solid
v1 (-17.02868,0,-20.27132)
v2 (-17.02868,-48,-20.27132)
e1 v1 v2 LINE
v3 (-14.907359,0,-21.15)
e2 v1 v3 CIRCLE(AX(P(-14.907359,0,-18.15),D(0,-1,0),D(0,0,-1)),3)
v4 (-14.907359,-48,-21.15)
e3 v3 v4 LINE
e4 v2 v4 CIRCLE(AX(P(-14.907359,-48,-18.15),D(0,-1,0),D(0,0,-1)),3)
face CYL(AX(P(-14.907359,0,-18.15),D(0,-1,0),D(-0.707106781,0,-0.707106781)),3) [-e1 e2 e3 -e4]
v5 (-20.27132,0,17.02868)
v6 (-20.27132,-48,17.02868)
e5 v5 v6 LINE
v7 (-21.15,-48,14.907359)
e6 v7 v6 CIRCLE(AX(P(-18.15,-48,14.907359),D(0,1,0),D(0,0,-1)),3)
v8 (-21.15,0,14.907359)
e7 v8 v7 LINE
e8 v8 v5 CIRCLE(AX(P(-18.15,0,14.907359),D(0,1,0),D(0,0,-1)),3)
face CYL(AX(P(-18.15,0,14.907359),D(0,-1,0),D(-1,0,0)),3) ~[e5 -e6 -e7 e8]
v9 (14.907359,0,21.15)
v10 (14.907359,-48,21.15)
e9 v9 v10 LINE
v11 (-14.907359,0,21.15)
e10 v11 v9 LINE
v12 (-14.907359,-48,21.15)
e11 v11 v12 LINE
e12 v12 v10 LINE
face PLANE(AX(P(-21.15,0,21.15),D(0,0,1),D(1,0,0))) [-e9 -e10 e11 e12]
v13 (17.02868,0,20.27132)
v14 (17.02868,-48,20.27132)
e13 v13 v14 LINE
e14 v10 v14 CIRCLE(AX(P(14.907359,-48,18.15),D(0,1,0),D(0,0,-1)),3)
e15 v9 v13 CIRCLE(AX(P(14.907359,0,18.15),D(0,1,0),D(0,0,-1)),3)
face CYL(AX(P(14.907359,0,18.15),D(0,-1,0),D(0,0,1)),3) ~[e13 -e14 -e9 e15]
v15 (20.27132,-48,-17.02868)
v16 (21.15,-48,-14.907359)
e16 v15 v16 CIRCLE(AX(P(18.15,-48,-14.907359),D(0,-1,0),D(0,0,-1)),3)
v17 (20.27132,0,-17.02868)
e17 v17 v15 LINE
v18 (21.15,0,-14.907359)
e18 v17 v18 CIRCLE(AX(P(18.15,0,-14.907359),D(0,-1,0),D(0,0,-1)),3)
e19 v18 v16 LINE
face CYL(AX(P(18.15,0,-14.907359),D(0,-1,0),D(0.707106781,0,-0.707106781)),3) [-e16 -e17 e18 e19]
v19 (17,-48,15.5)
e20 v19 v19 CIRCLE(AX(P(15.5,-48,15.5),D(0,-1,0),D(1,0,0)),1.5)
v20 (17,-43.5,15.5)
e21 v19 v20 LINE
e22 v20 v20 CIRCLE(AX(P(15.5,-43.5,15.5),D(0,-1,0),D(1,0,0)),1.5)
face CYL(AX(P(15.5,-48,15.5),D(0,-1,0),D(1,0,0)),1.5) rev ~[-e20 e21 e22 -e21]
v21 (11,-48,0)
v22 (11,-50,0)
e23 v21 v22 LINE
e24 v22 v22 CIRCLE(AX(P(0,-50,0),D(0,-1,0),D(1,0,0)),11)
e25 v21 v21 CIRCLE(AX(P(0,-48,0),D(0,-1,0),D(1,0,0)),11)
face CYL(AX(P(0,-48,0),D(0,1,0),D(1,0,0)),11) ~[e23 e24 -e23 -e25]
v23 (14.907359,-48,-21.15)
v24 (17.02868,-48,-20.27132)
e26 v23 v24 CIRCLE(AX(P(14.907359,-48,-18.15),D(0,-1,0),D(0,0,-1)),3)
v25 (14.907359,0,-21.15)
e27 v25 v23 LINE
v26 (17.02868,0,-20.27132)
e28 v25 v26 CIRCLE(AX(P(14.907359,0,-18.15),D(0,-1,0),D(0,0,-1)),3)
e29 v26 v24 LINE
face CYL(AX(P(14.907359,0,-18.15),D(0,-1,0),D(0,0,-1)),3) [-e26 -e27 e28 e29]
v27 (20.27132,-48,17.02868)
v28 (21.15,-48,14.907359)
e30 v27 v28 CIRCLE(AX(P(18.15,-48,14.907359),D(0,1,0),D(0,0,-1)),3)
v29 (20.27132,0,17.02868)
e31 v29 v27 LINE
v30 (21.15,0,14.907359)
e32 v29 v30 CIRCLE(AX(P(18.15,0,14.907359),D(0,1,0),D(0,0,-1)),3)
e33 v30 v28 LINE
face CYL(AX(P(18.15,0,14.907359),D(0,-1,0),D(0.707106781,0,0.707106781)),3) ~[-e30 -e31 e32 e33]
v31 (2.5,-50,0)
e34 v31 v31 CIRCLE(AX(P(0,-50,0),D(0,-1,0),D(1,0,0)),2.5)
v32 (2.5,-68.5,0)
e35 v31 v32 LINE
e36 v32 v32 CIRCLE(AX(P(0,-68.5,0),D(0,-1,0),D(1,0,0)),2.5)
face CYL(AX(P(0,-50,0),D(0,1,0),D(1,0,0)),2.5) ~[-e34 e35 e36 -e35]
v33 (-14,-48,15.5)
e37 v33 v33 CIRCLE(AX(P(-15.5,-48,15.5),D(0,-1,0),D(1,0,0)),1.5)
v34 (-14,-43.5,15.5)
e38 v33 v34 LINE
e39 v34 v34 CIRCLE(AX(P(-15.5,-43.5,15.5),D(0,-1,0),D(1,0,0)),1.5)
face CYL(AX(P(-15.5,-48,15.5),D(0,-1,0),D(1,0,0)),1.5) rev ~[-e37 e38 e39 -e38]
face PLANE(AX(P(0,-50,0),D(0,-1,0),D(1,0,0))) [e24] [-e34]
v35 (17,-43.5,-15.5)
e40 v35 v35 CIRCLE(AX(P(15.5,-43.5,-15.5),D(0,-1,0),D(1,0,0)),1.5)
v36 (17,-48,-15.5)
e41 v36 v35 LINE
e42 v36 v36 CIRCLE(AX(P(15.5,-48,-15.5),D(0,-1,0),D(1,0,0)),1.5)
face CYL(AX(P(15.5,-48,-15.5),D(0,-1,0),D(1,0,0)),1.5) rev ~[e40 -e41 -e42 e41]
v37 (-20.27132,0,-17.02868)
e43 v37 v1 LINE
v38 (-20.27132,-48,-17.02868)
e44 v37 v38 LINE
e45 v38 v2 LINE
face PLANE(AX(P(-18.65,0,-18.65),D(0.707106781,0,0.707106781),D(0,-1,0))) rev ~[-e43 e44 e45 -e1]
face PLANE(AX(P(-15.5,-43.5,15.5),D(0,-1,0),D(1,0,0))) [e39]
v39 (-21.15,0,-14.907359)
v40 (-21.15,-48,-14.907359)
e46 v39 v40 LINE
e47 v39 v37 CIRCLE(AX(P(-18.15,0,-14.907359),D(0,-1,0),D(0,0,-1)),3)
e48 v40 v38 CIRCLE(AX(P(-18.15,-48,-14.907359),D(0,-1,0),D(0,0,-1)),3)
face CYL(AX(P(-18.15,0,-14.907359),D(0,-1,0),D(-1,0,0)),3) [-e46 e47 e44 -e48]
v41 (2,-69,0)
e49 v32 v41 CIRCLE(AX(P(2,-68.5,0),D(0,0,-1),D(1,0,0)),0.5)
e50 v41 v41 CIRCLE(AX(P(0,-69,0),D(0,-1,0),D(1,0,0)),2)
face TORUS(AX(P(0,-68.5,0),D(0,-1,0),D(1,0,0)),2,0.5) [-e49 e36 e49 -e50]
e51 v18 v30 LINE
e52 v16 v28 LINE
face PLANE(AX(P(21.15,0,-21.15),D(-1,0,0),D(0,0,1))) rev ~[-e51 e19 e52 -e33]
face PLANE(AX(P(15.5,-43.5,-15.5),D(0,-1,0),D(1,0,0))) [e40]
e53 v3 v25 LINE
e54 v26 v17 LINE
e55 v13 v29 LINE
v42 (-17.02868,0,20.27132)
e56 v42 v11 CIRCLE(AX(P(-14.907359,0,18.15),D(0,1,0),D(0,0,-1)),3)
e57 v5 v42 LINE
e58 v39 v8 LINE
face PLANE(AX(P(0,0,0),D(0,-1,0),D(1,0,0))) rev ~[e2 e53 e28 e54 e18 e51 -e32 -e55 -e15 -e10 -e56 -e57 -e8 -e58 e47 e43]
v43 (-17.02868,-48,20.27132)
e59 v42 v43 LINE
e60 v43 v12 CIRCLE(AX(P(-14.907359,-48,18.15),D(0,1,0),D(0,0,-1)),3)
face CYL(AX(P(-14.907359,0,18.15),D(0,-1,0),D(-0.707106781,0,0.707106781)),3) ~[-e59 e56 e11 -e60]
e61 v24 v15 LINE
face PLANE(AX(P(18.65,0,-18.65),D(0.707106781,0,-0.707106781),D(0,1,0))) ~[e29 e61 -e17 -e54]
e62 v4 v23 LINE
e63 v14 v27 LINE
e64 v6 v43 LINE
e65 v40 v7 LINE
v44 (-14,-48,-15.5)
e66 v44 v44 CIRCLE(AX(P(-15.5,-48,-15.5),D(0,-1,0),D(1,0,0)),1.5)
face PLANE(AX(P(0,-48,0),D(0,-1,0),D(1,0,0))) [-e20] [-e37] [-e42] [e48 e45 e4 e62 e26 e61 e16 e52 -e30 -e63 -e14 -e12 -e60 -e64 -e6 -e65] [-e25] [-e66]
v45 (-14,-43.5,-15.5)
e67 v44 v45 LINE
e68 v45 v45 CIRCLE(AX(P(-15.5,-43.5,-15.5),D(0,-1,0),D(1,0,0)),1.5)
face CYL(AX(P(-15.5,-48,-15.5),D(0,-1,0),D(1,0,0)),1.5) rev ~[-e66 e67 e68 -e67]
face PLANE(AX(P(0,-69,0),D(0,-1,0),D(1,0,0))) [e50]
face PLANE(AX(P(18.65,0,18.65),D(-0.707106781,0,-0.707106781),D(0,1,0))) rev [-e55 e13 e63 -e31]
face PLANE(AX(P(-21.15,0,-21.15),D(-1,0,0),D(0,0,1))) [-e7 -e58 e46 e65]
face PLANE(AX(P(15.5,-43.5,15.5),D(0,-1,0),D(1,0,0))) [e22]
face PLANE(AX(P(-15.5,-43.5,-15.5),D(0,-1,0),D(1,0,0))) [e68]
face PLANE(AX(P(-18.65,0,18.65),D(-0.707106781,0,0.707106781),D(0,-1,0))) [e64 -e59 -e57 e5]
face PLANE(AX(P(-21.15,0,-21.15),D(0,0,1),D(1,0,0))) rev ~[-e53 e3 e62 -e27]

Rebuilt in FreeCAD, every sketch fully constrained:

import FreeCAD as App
import Part
import Sketcher
Q = App.Units.Quantity


def edges_at(feature, points):
    """Names of the edges that pass closest to the given points."""
    edges = feature.Shape.Edges
    near = lambda p: min(range(len(edges)), key=lambda i: edges[i].distToShape(Part.Vertex(*p))[0])
    return sorted({f"Edge{near(p) + 1}" for p in points})


def add_polygon(sketch, points):
    """Adds a closed chain of lines whose ends are joined by coincident constraints."""
    first, n = sketch.GeometryCount, len(points)
    for a, b in zip(points, points[1:] + points[:1]):
        sketch.addGeometry(Part.LineSegment(App.Vector(*a, 0), App.Vector(*b, 0)), False)
    for i in range(n):
        sketch.addConstraint(Sketcher.Constraint("Coincident", first + i, 2, first + (i + 1) % n, 1))

doc = App.newDocument("Part")
params = doc.addObject("Spreadsheet::Sheet", "Params")
for row, (alias, value) in enumerate([
    ("sketch1_width", "42.3 mm"),
    ("pad1_length", "48 mm"),
    ("sketch2_diameter", "3 mm"),
    ("pocket1_length", "4.5 mm"),
    ("sketch3_diameter", "22 mm"),
    ("pad2_length", "2 mm"),
    ("chamfer_size", "5 mm"),
    ("sketch4_diameter", "5 mm"),
    ("pad3_length", "19 mm"),
    ("fillet_radius", "0.5 mm"),
    ("fillet2_radius", "3 mm"),
], start=1):
    params.set(f"A{row}", alias)
    params.set(f"B{row}", "=" + value)
    params.setAlias(f"B{row}", alias)

body = doc.addObject("PartDesign::Body", "Body")

sketch1 = body.newObject("Sketcher::SketchObject", "Sketch")
sketch1.AttachmentSupport = (doc.getObject("XZ_Plane"), [""])
sketch1.MapMode = "FlatFace"
add_polygon(sketch1, [(-21, 21), (-21, -21), (21, -21), (21, 21)])
sketch1.addConstraint([
    Sketcher.Constraint("Vertical", 0),
    Sketcher.Constraint("Horizontal", 1),
    Sketcher.Constraint("Vertical", 2),
    Sketcher.Constraint("Horizontal", 3),
    Sketcher.Constraint("Symmetric", 0, 2, 2, 2, -1, 1),
    Sketcher.Constraint("Equal", 3, 0),
    Sketcher.Constraint("DistanceX", 1, 1, 1, 2, Q("42.3 mm")),
])
sketch1.setExpression("Constraints[10]", "Params.sketch1_width")
pad1 = body.newObject("PartDesign::Pad", "Pad")
pad1.Profile = sketch1
pad1.setExpression("Length", "Params.pad1_length")

sketch2 = body.newObject("Sketcher::SketchObject", "Sketch001")
sketch2.AttachmentSupport = (doc.getObject("XZ_Plane"), [""])
sketch2.MapMode = "FlatFace"
sketch2.AttachmentOffset = App.Placement(App.Vector(0, 0, 48), App.Rotation())
sketch2.addGeometry([
    Part.Circle(App.Vector(-15.5, 15.5, 0), App.Vector(0, 0, 1), 1.5),
    Part.Circle(App.Vector(-15.5, -15.5, 0), App.Vector(0, 0, 1), 1.5),
    Part.Circle(App.Vector(15.5, -15.5, 0), App.Vector(0, 0, 1), 1.5),
    Part.Circle(App.Vector(15.5, 15.5, 0), App.Vector(0, 0, 1), 1.5),
], False)
sketch2.addConstraint([
    Sketcher.Constraint("Equal", 0, 1),
    Sketcher.Constraint("Equal", 1, 2),
    Sketcher.Constraint("Equal", 2, 3),
    Sketcher.Constraint("Symmetric", 0, 3, 2, 3, -1, 1),
    Sketcher.Constraint("Symmetric", 1, 3, 3, 3, -1, 1),
    Sketcher.Constraint("Symmetric", 1, 3, 2, 3, -2),
    Sketcher.Constraint("Diameter", 0, Q("3 mm")),
    Sketcher.Constraint("DistanceY", 1, 3, 0, 3, Q("31 mm")),
    Sketcher.Constraint("DistanceX", 1, 3, 2, 3, Q("31 mm")),
])
sketch2.setExpression("Constraints[6]", "Params.sketch2_diameter")
pocket1 = body.newObject("PartDesign::Pocket", "Pocket")
pocket1.Profile = sketch2
pocket1.setExpression("Length", "Params.pocket1_length")

sketch3 = body.newObject("Sketcher::SketchObject", "Sketch002")
sketch3.AttachmentSupport = (doc.getObject("XZ_Plane"), [""])
sketch3.MapMode = "FlatFace"
sketch3.AttachmentOffset = App.Placement(App.Vector(0, 0, 48), App.Rotation())
sketch3.addGeometry(Part.Circle(App.Vector(0, 0, 0), App.Vector(0, 0, 1), 11), False)
sketch3.addConstraint([
    Sketcher.Constraint("Coincident", 0, 3, -1, 1),
    Sketcher.Constraint("Diameter", 0, Q("22 mm")),
])
sketch3.setExpression("Constraints[1]", "Params.sketch3_diameter")
pad2 = body.newObject("PartDesign::Pad", "Pad001")
pad2.Profile = sketch3
pad2.setExpression("Length", "Params.pad2_length")
doc.recompute()

chamfer = body.newObject("PartDesign::Chamfer", "Chamfer")
chamfer.Base = (pad2, edges_at(pad2, [
    (21.15, -24, 21.15),
    (-21.15, -24, 21.15),
    (-21.15, -24, -21.15),
    (21.15, -24, -21.15),
]))
chamfer.setExpression("Size", "Params.chamfer_size")

sketch4 = body.newObject("Sketcher::SketchObject", "Sketch003")
sketch4.AttachmentSupport = (doc.getObject("XZ_Plane"), [""])
sketch4.MapMode = "FlatFace"
sketch4.AttachmentOffset = App.Placement(App.Vector(0, 0, 50), App.Rotation())
sketch4.addGeometry(Part.Circle(App.Vector(0, 0, 0), App.Vector(0, 0, 1), 2.5), False)
sketch4.addConstraint([
    Sketcher.Constraint("Coincident", 0, 3, -1, 1),
    Sketcher.Constraint("Diameter", 0, Q("5 mm")),
])
sketch4.setExpression("Constraints[1]", "Params.sketch4_diameter")
pad3 = body.newObject("PartDesign::Pad", "Pad002")
pad3.Profile = sketch4
pad3.setExpression("Length", "Params.pad3_length")
doc.recompute()

fillet = body.newObject("PartDesign::Fillet", "Fillet")
fillet.Base = (pad3, edges_at(pad3, [(-2.5, -69, 0)]))
fillet.setExpression("Radius", "Params.fillet_radius")
doc.recompute()

fillet2 = body.newObject("PartDesign::Fillet", "Fillet001")
fillet2.Base = (fillet, edges_at(fillet, [
    (16.15, -24, -21.15),
    (21.15, -24, -16.15),
    (-16.15, -24, -21.15),
    (-21.15, -24, -16.15),
    (21.15, -24, 16.15),
    (16.15, -24, 21.15),
    (-16.15, -24, 21.15),
    (-21.15, -24, 16.15),
]))
fillet2.setExpression("Radius", "Params.fillet2_radius")

doc.recompute()
